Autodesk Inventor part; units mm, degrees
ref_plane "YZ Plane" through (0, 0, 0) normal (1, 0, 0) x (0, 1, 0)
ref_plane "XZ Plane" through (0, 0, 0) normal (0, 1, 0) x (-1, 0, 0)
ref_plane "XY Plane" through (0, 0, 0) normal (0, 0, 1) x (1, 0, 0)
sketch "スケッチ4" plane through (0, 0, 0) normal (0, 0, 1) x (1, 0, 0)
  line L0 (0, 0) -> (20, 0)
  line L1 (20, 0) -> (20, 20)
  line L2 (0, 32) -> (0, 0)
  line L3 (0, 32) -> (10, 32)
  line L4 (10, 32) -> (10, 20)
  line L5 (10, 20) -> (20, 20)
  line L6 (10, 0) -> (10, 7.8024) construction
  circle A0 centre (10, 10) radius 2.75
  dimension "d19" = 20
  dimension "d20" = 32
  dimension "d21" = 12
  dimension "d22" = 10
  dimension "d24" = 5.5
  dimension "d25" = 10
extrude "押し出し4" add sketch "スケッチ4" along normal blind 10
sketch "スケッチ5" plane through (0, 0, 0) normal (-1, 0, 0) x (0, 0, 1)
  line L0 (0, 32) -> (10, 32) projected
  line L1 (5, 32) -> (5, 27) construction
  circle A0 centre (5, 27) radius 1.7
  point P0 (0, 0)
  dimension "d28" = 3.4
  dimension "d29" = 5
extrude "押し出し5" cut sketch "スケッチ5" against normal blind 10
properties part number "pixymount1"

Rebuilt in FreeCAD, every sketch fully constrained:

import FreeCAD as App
import Part
import Sketcher
from FreeCAD import Vector
Q = App.Units.Quantity

doc = App.newDocument("Part")
body = doc.addObject("PartDesign::Body", "Body")

sketch1 = body.newObject("Sketcher::SketchObject", "Sketch")
sketch1.AttachmentSupport = (doc.getObject("XY_Plane"), [""])
sketch1.MapMode = "FlatFace"
sketch1.addGeometry([
    Part.LineSegment(Vector(0, 32, 0), Vector(0, 0, 0)),
    Part.LineSegment(Vector(0, 0, 0), Vector(20, 0, 0)),
    Part.LineSegment(Vector(20, 0, 0), Vector(20, 20, 0)),
    Part.LineSegment(Vector(20, 20, 0), Vector(10, 20, 0)),
    Part.LineSegment(Vector(10, 20, 0), Vector(10, 32, 0)),
    Part.LineSegment(Vector(10, 32, 0), Vector(0, 32, 0)),
    Part.Circle(Vector(10, 10, 0), Vector(0, 0, 1), 2.8),
], False)
sketch1.addConstraint([
    Sketcher.Constraint("Coincident", 0, 2, 1, 1),
    Sketcher.Constraint("Coincident", 1, 2, 2, 1),
    Sketcher.Constraint("Coincident", 2, 2, 3, 1),
    Sketcher.Constraint("Coincident", 3, 2, 4, 1),
    Sketcher.Constraint("Coincident", 4, 2, 5, 1),
    Sketcher.Constraint("Coincident", 5, 2, 0, 1),
    Sketcher.Constraint("Vertical", 0),
    Sketcher.Constraint("Horizontal", 1),
    Sketcher.Constraint("Vertical", 2),
    Sketcher.Constraint("Horizontal", 3),
    Sketcher.Constraint("Vertical", 4),
    Sketcher.Constraint("Horizontal", 5),
    Sketcher.Constraint("Coincident", 0, 2, -1, 1),
    Sketcher.Constraint("Vertical", 6, 3, 3, 2),
    Sketcher.Constraint("Equal", 3, 5),
    Sketcher.Constraint("Equal", 1, 2),
    Sketcher.Constraint("Diameter", 6, Q("5.5 mm")),
    Sketcher.Constraint("DistanceX", 1, 1, 1, 2, Q("20 mm")),
    Sketcher.Constraint("DistanceY", 0, 2, 0, 1, Q("32 mm")),
    Sketcher.Constraint("DistanceY", -1, 1, 6, 3, Q("10 mm")),
])
pad1 = body.newObject("PartDesign::Pad", "Pad")
pad1.Profile = sketch1
pad1.Length = 10

sketch2 = body.newObject("Sketcher::SketchObject", "Sketch001")
sketch2.AttachmentSupport = (doc.getObject("YZ_Plane"), [""])
sketch2.MapMode = "FlatFace"
sketch2.addGeometry(Part.Circle(Vector(27, 5, 0), Vector(0, 0, 1), 1.7), False)
sketch2.addConstraint([
    Sketcher.Constraint("Diameter", 0, Q("3.4 mm")),
    Sketcher.Constraint("DistanceY", -1, 1, 0, 3, Q("5 mm")),
    Sketcher.Constraint("DistanceX", -1, 1, 0, 3, Q("27 mm")),
])
pocket1 = body.newObject("PartDesign::Pocket", "Pocket")
pocket1.Profile = sketch2
pocket1.Length = 10
pocket1.Reversed = True

doc.recompute()
